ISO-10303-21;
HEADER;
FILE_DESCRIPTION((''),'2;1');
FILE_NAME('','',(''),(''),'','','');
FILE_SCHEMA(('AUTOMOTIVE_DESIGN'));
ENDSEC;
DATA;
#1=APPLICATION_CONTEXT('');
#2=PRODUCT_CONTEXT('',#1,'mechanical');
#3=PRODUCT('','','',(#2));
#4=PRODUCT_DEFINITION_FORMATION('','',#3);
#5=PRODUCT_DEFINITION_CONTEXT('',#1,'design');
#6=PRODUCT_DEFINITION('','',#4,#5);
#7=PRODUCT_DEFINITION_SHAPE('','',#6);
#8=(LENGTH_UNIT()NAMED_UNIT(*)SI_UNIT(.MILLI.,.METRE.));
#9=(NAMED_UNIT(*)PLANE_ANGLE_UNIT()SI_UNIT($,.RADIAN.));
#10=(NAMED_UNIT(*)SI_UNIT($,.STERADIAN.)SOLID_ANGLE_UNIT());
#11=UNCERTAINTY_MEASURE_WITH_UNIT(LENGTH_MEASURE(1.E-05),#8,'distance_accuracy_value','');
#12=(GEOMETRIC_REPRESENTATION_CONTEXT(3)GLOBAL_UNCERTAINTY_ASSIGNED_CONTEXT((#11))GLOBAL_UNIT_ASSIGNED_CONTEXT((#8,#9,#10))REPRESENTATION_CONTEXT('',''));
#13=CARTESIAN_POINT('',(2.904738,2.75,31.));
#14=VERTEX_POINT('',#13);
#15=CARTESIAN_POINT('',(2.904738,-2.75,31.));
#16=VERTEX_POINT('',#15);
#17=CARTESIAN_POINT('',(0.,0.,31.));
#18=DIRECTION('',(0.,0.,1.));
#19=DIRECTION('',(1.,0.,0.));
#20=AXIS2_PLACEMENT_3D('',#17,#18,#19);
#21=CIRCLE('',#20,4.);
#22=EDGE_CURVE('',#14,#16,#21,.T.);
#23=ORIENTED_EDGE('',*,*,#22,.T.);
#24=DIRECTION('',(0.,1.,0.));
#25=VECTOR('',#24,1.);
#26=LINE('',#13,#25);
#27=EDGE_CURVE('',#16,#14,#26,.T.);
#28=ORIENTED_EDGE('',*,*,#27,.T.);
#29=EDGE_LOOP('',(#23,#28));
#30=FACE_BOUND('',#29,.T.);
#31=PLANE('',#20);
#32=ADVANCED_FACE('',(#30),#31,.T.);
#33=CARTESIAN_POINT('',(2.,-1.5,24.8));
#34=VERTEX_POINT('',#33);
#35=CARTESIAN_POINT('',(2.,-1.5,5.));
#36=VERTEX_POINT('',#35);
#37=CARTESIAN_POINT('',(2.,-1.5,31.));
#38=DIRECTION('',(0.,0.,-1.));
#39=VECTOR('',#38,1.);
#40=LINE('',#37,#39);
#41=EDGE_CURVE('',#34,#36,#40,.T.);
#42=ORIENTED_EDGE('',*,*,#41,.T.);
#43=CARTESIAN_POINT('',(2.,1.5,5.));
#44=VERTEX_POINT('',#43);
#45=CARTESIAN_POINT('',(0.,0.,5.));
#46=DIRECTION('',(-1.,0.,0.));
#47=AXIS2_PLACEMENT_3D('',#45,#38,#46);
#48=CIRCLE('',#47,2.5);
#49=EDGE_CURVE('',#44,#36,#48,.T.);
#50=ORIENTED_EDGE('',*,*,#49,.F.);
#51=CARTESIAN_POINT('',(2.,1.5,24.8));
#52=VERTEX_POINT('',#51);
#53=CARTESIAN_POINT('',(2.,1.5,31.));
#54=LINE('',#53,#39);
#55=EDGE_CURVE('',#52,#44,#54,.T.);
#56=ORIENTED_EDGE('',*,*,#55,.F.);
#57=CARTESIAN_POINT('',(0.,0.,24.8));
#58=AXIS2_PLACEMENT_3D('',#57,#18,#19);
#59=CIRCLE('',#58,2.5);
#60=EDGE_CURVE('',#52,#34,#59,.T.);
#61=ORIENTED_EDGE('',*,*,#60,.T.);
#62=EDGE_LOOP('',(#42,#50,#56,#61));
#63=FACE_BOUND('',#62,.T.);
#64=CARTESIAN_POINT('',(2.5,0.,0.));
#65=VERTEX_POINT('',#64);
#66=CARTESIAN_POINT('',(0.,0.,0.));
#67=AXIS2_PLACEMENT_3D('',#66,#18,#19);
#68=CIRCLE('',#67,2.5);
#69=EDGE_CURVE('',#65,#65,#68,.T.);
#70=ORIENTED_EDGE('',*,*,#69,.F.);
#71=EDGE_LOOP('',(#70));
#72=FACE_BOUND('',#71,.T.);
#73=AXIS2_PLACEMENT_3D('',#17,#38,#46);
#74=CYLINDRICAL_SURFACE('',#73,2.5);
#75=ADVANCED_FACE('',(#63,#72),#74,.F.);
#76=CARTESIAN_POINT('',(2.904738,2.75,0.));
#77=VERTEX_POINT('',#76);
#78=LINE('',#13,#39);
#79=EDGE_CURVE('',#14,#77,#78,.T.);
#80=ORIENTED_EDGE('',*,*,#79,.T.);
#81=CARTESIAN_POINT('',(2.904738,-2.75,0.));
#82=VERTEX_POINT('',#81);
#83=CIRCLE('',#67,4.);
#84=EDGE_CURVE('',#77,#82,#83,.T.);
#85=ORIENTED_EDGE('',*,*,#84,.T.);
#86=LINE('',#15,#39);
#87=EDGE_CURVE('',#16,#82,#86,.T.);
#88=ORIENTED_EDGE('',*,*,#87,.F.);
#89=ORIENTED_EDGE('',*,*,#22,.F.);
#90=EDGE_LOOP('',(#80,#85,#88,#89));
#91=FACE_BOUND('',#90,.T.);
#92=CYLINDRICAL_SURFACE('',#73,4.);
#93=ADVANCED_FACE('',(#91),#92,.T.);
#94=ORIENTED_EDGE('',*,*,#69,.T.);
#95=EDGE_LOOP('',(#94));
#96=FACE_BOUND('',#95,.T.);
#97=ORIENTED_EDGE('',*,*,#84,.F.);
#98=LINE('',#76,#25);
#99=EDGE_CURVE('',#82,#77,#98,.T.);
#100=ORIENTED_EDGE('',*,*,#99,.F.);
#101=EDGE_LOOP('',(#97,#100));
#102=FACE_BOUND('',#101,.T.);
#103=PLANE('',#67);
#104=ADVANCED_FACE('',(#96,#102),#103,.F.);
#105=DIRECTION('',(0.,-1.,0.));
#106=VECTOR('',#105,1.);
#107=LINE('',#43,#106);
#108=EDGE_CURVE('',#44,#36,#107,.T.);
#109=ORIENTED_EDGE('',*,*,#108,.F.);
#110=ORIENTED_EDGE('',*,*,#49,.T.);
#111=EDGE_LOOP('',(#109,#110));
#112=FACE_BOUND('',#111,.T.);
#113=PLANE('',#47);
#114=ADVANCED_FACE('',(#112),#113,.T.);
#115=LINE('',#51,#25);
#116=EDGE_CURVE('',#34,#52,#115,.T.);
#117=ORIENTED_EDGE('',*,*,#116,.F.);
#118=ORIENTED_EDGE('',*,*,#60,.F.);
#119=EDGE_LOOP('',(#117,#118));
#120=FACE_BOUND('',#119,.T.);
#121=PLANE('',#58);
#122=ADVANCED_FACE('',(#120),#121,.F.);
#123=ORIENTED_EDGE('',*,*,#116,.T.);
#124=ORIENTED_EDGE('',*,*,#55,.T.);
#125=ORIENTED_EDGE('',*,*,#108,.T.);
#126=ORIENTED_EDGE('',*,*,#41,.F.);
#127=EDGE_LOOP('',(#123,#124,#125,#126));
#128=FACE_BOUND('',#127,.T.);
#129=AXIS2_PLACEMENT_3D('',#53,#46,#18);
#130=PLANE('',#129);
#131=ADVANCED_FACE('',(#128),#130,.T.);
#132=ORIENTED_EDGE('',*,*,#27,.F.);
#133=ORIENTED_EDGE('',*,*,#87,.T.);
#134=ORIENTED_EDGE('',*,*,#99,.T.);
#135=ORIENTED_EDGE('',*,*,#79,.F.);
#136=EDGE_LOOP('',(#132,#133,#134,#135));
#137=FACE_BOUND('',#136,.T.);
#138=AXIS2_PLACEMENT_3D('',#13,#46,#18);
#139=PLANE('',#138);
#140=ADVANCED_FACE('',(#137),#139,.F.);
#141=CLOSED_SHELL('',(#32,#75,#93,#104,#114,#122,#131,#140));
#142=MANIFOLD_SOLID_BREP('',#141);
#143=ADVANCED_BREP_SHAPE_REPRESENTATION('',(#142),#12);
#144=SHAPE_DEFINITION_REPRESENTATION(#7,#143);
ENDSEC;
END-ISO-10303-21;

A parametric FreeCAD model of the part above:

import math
import FreeCAD as App
import Part
import Sketcher

V = App.Vector
Q = App.Units.Quantity

doc = App.newDocument("Part")
body = doc.addObject("PartDesign::Body", "Body")

sketch1 = body.newObject("Sketcher::SketchObject", "Sketch")
sketch1.AttachmentSupport = (doc.getObject("XY_Plane"), [""])
sketch1.MapMode = "FlatFace"
sketch1.addGeometry([
    Part.LineSegment(V(2.904738, -2.75, 0), V(2.904738, 2.75, 0)),
    Part.ArcOfCircle(Part.Circle(V(0, 0, 0), V(0, 0, 1), 4), math.radians(43.432537), math.radians(316.567463)),
    Part.LineSegment(V(2, 1.5, 0), V(2, -1.5, 0)),
    Part.ArcOfCircle(Part.Circle(V(0, 0, 0), V(0, 0, 1), 2.5), math.radians(36.869898), math.radians(323.130102)),
], False)
sketch1.addConstraint([
    Sketcher.Constraint("Coincident", 0, 1, 1, 2),
    Sketcher.Constraint("Coincident", 1, 1, 0, 2),
    Sketcher.Constraint("Coincident", 2, 1, 3, 1),
    Sketcher.Constraint("Coincident", 3, 2, 2, 2),
    Sketcher.Constraint("Vertical", 0),
    Sketcher.Constraint("Vertical", 2),
    Sketcher.Constraint("Coincident", 1, 3, -1, 1),
    Sketcher.Constraint("Coincident", 3, 3, -1, 1),
    Sketcher.Constraint("Radius", 1, Q("4 mm")),
    Sketcher.Constraint("Radius", 3, Q("2.5 mm")),
    Sketcher.Constraint("DistanceY", 2, 2, 2, 1, Q("3 mm")),
    Sketcher.Constraint("DistanceY", 0, 1, 0, 2, Q("5.5 mm")),
])
pad1 = body.newObject("PartDesign::Pad", "Pad")
pad1.Profile = sketch1
pad1.Length = 31

sketch2 = body.newObject("Sketcher::SketchObject", "Sketch001")
sketch2.AttachmentSupport = (doc.getObject("XY_Plane"), [""])
sketch2.MapMode = "FlatFace"
sketch2.AttachmentOffset = App.Placement(V(0, 0, 24.8), App.Rotation())
sketch2.addGeometry([
    Part.LineSegment(V(2.904738, -2.75, 0), V(2.904738, 2.75, 0)),
    Part.ArcOfCircle(Part.Circle(V(0, 0, 0), V(0, 0, 1), 4), math.radians(43.432537), math.radians(316.567463)),
], False)
sketch2.addConstraint([
    Sketcher.Constraint("Coincident", 0, 1, 1, 2),
    Sketcher.Constraint("Coincident", 1, 1, 0, 2),
    Sketcher.Constraint("Vertical", 0),
    Sketcher.Constraint("Coincident", 1, 3, -1, 1),
    Sketcher.Constraint("Radius", 1, Q("4 mm")),
    Sketcher.Constraint("DistanceY", 0, 1, 0, 2, Q("5.5 mm")),
])
pad2 = body.newObject("PartDesign::Pad", "Pad001")
pad2.Profile = sketch2
pad2.Length = 6.2

sketch3 = body.newObject("Sketcher::SketchObject", "Sketch002")
sketch3.AttachmentSupport = (doc.getObject("XY_Plane"), [""])
sketch3.MapMode = "FlatFace"
sketch3.addGeometry(Part.Circle(V(0, 0, 0), V(0, 0, 1), 2.5), False)
sketch3.addConstraint([
    Sketcher.Constraint("Coincident", 0, 3, -1, 1),
    Sketcher.Constraint("Diameter", 0, Q("5 mm")),
])
pocket1 = body.newObject("PartDesign::Pocket", "Pocket")
pocket1.Profile = sketch3
pocket1.Length = 5
pocket1.Reversed = True

doc.recompute()
